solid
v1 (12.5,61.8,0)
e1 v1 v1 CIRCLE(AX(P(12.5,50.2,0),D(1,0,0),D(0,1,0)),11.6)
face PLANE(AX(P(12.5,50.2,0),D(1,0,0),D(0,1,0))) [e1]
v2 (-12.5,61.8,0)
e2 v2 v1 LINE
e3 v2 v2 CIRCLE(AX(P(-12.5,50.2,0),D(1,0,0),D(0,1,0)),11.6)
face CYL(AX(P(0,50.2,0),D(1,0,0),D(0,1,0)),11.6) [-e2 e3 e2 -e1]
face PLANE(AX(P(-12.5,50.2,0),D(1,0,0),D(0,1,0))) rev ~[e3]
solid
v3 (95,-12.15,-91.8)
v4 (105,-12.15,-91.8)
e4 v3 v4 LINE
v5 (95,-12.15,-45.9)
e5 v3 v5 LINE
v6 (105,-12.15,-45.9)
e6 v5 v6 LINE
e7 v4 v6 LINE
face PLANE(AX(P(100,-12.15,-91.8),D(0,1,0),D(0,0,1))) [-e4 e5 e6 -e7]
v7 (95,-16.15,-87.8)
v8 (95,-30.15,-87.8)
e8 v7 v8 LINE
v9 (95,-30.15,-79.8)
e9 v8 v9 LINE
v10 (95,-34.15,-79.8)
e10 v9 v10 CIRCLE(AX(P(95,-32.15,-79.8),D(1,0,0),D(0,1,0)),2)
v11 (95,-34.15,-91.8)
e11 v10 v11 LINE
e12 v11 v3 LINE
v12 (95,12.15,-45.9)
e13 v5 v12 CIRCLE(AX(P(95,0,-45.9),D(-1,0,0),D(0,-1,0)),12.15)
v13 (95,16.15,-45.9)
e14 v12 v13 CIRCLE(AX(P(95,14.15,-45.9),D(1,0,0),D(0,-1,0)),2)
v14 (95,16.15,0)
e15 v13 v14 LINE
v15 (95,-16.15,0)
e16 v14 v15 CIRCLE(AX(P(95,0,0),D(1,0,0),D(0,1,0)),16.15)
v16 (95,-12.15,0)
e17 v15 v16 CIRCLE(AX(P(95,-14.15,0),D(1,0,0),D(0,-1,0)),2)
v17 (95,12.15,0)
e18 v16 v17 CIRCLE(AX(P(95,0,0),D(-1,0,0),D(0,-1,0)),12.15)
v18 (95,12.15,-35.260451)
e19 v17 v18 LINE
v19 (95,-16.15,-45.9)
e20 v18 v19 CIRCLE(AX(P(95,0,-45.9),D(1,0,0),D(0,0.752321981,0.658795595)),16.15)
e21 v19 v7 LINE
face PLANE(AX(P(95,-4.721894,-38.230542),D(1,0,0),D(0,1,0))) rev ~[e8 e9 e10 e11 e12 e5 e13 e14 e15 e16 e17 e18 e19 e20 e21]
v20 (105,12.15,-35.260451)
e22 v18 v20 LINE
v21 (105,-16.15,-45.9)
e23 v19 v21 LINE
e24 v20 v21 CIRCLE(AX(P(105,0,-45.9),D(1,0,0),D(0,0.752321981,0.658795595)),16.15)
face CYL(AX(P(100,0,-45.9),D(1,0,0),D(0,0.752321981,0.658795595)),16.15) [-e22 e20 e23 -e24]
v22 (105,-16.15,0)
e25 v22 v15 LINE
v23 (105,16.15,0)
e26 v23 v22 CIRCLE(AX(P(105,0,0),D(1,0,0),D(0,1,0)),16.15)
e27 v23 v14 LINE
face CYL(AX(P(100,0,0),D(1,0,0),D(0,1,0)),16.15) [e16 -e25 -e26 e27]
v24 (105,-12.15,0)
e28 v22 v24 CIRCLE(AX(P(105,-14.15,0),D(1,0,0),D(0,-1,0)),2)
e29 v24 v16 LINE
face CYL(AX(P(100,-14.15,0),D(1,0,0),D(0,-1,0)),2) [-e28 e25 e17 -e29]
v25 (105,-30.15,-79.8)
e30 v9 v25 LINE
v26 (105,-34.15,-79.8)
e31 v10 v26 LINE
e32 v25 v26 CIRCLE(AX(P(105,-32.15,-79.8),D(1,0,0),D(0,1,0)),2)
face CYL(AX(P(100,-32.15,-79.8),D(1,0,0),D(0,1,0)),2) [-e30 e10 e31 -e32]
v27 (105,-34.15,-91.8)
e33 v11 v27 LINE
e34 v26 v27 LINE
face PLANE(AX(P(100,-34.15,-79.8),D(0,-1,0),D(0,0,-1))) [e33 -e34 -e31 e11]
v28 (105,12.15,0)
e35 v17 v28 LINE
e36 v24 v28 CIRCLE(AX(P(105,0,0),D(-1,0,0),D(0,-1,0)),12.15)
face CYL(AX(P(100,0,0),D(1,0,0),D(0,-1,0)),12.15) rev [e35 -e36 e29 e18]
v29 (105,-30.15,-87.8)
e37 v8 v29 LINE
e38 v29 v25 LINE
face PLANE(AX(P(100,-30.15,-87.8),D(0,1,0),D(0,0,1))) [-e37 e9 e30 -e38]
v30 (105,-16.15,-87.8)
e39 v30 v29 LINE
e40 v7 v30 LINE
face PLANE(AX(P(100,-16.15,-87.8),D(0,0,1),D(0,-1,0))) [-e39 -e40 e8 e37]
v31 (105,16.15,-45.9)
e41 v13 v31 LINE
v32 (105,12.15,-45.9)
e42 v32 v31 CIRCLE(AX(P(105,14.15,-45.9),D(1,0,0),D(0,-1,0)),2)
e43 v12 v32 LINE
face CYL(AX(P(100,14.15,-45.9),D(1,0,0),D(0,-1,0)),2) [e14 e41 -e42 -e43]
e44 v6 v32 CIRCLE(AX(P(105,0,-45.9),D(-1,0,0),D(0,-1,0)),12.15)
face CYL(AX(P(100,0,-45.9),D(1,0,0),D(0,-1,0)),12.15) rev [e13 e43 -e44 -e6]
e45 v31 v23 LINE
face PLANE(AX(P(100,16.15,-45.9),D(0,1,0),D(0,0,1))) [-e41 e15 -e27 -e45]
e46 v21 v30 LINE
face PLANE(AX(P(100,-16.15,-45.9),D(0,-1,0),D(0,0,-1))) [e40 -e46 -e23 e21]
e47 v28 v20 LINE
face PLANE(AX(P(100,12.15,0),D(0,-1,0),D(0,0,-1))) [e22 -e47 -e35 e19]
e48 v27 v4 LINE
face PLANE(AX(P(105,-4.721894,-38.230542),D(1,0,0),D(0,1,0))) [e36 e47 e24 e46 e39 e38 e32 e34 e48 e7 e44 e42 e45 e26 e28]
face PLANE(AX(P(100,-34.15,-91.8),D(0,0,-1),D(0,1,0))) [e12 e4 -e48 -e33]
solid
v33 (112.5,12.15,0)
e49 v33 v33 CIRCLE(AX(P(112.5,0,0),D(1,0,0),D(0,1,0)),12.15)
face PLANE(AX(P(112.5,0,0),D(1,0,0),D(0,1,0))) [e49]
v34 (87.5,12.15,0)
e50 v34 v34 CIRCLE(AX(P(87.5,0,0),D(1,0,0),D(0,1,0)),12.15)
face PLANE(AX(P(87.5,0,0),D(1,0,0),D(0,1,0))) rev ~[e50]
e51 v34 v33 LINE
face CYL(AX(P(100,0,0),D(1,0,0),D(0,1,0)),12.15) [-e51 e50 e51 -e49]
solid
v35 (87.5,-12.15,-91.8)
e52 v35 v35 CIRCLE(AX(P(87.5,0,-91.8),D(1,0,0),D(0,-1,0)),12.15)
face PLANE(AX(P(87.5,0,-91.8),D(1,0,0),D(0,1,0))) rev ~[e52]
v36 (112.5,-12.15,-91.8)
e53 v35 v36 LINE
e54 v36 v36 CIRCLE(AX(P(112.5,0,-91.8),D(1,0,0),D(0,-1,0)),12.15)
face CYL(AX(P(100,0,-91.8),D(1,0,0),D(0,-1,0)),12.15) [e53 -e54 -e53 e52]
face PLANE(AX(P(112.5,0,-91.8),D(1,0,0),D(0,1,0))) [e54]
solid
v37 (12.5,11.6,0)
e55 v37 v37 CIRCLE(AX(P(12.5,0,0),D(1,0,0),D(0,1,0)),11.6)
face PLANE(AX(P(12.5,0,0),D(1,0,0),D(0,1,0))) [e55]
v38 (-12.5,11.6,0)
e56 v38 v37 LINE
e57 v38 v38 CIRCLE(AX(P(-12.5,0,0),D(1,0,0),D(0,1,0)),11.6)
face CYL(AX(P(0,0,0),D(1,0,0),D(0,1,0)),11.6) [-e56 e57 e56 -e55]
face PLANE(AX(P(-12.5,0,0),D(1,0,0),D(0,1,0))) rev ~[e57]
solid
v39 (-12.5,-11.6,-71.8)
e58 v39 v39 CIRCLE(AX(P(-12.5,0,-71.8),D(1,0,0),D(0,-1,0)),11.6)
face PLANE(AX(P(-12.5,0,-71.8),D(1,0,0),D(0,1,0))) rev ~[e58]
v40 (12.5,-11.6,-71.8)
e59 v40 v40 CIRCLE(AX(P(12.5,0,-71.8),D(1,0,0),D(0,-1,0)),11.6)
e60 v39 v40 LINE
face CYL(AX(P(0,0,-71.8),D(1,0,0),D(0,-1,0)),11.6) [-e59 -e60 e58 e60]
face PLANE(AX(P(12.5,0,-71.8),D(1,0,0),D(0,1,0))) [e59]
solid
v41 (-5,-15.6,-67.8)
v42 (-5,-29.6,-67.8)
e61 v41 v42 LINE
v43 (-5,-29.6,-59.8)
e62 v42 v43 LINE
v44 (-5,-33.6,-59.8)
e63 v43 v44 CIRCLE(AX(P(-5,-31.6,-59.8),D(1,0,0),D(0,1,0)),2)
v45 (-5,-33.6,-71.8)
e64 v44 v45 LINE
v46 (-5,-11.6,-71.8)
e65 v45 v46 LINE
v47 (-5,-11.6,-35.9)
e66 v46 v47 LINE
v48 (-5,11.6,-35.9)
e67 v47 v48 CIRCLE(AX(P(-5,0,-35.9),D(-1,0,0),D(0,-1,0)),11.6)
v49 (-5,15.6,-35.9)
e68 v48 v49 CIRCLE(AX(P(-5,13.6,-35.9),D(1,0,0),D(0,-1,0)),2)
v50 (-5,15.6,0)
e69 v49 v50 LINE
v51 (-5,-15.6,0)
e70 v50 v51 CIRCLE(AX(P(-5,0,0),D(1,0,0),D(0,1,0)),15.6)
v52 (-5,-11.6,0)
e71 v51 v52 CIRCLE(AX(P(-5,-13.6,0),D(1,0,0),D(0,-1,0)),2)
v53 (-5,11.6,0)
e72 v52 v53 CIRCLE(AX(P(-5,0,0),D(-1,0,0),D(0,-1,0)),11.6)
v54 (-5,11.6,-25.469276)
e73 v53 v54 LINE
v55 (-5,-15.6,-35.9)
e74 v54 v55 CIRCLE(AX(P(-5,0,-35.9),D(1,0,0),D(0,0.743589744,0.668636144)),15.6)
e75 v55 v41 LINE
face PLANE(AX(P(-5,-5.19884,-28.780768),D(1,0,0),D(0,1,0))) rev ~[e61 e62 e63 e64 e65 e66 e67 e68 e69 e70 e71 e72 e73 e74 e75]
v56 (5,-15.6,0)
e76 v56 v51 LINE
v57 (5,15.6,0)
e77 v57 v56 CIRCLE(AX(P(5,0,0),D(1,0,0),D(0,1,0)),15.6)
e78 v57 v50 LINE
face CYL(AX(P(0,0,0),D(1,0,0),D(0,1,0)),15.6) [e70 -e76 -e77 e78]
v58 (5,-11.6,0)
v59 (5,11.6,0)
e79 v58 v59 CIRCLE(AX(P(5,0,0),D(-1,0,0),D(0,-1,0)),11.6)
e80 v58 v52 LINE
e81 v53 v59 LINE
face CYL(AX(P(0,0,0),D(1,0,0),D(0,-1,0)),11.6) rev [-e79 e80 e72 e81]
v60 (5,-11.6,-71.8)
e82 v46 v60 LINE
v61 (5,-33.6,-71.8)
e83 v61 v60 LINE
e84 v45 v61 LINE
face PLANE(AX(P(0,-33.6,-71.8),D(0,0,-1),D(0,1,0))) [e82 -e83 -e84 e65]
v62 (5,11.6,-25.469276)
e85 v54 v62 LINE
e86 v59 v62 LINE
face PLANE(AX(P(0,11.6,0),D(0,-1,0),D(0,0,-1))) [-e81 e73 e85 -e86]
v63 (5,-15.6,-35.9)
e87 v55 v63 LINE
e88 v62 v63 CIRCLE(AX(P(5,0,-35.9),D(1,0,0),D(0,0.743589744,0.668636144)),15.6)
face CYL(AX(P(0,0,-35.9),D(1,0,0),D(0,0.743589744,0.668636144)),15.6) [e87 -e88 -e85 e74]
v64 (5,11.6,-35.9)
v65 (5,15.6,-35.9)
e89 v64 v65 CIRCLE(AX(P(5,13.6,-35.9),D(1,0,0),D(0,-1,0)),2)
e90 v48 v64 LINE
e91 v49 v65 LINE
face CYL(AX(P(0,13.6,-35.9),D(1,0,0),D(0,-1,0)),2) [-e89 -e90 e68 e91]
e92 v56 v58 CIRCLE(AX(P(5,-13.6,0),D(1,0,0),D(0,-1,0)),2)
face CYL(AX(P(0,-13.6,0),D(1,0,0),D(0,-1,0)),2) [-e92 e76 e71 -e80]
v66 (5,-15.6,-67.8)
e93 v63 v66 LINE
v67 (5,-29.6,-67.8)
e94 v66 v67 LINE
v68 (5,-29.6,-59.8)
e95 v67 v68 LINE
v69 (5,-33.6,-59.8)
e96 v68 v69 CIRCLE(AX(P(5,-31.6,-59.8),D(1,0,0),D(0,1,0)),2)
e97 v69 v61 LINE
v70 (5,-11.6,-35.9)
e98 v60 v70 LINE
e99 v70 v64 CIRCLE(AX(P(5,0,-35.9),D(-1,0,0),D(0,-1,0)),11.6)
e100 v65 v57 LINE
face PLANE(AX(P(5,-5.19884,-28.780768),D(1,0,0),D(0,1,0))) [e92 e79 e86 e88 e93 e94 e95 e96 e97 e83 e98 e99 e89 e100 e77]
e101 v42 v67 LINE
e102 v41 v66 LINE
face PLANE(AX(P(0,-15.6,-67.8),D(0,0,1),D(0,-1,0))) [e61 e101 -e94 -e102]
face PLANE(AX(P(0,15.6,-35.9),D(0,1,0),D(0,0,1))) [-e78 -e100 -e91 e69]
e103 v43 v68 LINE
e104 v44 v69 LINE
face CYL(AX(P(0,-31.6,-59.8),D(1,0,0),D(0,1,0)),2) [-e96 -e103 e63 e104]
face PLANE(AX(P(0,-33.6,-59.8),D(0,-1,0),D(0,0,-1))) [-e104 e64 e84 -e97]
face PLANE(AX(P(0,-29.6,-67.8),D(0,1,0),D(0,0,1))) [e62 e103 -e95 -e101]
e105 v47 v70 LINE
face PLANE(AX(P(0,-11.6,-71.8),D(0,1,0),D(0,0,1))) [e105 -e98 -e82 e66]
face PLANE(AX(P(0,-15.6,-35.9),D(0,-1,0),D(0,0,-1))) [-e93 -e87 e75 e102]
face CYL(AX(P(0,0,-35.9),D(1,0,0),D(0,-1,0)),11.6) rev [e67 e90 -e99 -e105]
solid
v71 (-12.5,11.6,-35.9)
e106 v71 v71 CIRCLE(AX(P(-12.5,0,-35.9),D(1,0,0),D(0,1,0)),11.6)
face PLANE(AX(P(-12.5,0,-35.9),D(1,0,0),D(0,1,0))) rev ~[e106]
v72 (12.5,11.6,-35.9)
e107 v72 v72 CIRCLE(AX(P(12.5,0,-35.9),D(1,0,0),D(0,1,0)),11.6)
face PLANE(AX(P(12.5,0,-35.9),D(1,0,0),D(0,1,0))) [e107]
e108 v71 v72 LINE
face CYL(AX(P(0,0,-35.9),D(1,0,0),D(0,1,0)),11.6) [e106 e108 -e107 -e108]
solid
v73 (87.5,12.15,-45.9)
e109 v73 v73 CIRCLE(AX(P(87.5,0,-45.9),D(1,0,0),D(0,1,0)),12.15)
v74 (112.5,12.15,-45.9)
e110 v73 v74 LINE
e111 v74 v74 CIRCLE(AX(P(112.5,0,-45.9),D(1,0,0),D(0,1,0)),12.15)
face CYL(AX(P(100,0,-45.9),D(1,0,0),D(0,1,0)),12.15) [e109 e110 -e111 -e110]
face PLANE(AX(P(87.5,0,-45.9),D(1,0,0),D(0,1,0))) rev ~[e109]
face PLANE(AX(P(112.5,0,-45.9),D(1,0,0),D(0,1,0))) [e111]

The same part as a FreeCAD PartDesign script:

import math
import FreeCAD as App
import Part
import Sketcher

V = App.Vector

doc = App.newDocument("Part")
body = doc.addObject("PartDesign::Body", "Body")

sketch1 = body.newObject("Sketcher::SketchObject", "Sketch")
sketch1.AttachmentSupport = (doc.getObject("YZ_Plane"), [""])
sketch1.MapMode = "FlatFace"
sketch1.addGeometry(Part.Circle(V(0, 0, 0), V(0, 0, 1), 11.6), False)
sketch1.addConstraint([
    Sketcher.Constraint("Coincident", 0, 3, -1, 1),
    Sketcher.Constraint("Diameter", 0, 23.2),
])
pad1 = body.newObject("PartDesign::Pad", "Pad")
pad1.Profile = sketch1
pad1.Length = 25
pad1.Midplane = True
body2 = doc.addObject("PartDesign::Body", "Body001")

sketch2 = body2.newObject("Sketcher::SketchObject", "Sketch001")
sketch2.AttachmentSupport = (doc.getObject("YZ_Plane001"), [""])
sketch2.MapMode = "FlatFace"
sketch2.addGeometry(Part.Circle(V(0, -35.9, 0), V(0, 0, 1), 11.6), False)
sketch2.addConstraint([
    Sketcher.Constraint("PointOnObject", 0, 3, -2),
    Sketcher.Constraint("Diameter", 0, 23.2),
    Sketcher.Constraint("DistanceY", 0, 3, -1, 1, 35.9),
])
pad2 = body2.newObject("PartDesign::Pad", "Pad001")
pad2.Profile = sketch2
pad2.Length = 25
pad2.Midplane = True
body3 = doc.addObject("PartDesign::Body", "Body002")

sketch3 = body3.newObject("Sketcher::SketchObject", "Sketch002")
sketch3.AttachmentSupport = (doc.getObject("YZ_Plane002"), [""])
sketch3.MapMode = "FlatFace"
sketch3.addGeometry(Part.Circle(V(50.2, 0, 0), V(0, 0, 1), 11.6), False)
sketch3.addConstraint([
    Sketcher.Constraint("PointOnObject", 0, 3, -1),
    Sketcher.Constraint("Diameter", 0, 23.2),
    Sketcher.Constraint("DistanceX", -1, 1, 0, 3, 50.2),
])
pad3 = body3.newObject("PartDesign::Pad", "Pad002")
pad3.Profile = sketch3
pad3.Length = 25
pad3.Midplane = True
body4 = doc.addObject("PartDesign::Body", "Body003")

sketch4 = body4.newObject("Sketcher::SketchObject", "Sketch003")
sketch4.AttachmentSupport = (doc.getObject("YZ_Plane003"), [""])
sketch4.MapMode = "FlatFace"
sketch4.addGeometry([
    Part.ArcOfCircle(Part.Circle(V(0, 0, 0), V(0, 0, 1), 11.6), math.radians(0), math.radians(180)),
    Part.LineSegment(V(11.6, 0, 0), V(11.6, -25.469276, 0)),
    Part.ArcOfCircle(Part.Circle(V(0, -35.9, 0), V(0, 0, 1), 15.6), math.radians(41.961889), math.radians(180)),
    Part.LineSegment(V(-15.6, -35.9, 0), V(-15.6, -67.8, 0)),
    Part.LineSegment(V(-15.6, -67.8, 0), V(-29.6, -67.8, 0)),
    Part.LineSegment(V(-29.6, -67.8, 0), V(-29.6, -59.8, 0)),
    Part.ArcOfCircle(Part.Circle(V(-31.6, -59.8, 0), V(0, 0, 1), 2), math.radians(0), math.radians(180)),
    Part.LineSegment(V(-33.6, -59.8, 0), V(-33.6, -71.8, 0)),
    Part.LineSegment(V(-33.6, -71.8, 0), V(-11.6, -71.8, 0)),
    Part.LineSegment(V(-11.6, -71.8, 0), V(-11.6, -35.9, 0)),
    Part.ArcOfCircle(Part.Circle(V(0, -35.9, 0), V(0, 0, 1), 11.6), math.radians(0), math.radians(180)),
    Part.ArcOfCircle(Part.Circle(V(13.6, -35.9, 0), V(0, 0, 1), 2), math.radians(180), math.radians(360)),
    Part.LineSegment(V(15.6, -35.9, 0), V(15.6, 0, 0)),
    Part.ArcOfCircle(Part.Circle(V(0, 0, 0), V(0, 0, 1), 15.6), math.radians(0), math.radians(180)),
    Part.ArcOfCircle(Part.Circle(V(-13.6, 0, 0), V(0, 0, 1), 2), math.radians(180), math.radians(360)),
], False)
sketch4.addConstraint([
    Sketcher.Constraint("Tangent", 0, 1, 1, 1),
    Sketcher.Constraint("Coincident", 1, 2, 2, 1),
    Sketcher.Constraint("Tangent", 2, 2, 3, 1),
    Sketcher.Constraint("Coincident", 3, 2, 4, 1),
    Sketcher.Constraint("Coincident", 4, 2, 5, 1),
    Sketcher.Constraint("Tangent", 5, 2, 6, 1),
    Sketcher.Constraint("Tangent", 6, 2, 7, 1),
    Sketcher.Constraint("Coincident", 7, 2, 8, 1),
    Sketcher.Constraint("Coincident", 8, 2, 9, 1),
    Sketcher.Constraint("Tangent", 9, 2, 10, 2),
    Sketcher.Constraint("Tangent", 10, 1, 11, 1),
    Sketcher.Constraint("Tangent", 11, 2, 12, 1),
    Sketcher.Constraint("Tangent", 12, 2, 13, 1),
    Sketcher.Constraint("Tangent", 13, 2, 14, 1),
    Sketcher.Constraint("Tangent", 14, 2, 0, 2),
    Sketcher.Constraint("Vertical", 1),
    Sketcher.Constraint("Vertical", 3),
    Sketcher.Constraint("Horizontal", 4),
    Sketcher.Constraint("Vertical", 5),
    Sketcher.Constraint("Vertical", 7),
    Sketcher.Constraint("Horizontal", 8),
    Sketcher.Constraint("Vertical", 9),
    Sketcher.Constraint("Vertical", 12),
    Sketcher.Constraint("Coincident", 0, 3, -1, 1),
    Sketcher.Constraint("Coincident", 13, 3, -1, 1),
    Sketcher.Constraint("Coincident", 10, 3, 2, 3),
    Sketcher.Constraint("Equal", 0, 10),
    Sketcher.Constraint("Equal", 6, 11),
    Sketcher.Constraint("Equal", 2, 13),
    Sketcher.Constraint("Equal", 11, 14),
    Sketcher.Constraint("PointOnObject", 14, 3, -1),
    Sketcher.Constraint("Horizontal", 10, 3, 11, 3),
    Sketcher.Constraint("Equal", 9, 12),
    Sketcher.Constraint("Radius", 6, 2.0),
    Sketcher.Constraint("Radius", 0, 11.6),
    Sketcher.Constraint("DistanceX", 4, 2, 4, 1, 14.0),
    Sketcher.Constraint("DistanceY", 5, 1, 5, 2, 8.0),
    Sketcher.Constraint("DistanceY", 7, 2, 7, 1, 12.0),
    Sketcher.Constraint("DistanceY", 3, 2, 3, 1, 31.9),
])
pad4 = body4.newObject("PartDesign::Pad", "Pad003")
pad4.Profile = sketch4
pad4.Length = 10
pad4.Midplane = True
body5 = doc.addObject("PartDesign::Body", "Body004")

sketch5 = body5.newObject("Sketcher::SketchObject", "Sketch004")
sketch5.AttachmentSupport = (doc.getObject("YZ_Plane004"), [""])
sketch5.MapMode = "FlatFace"
sketch5.addGeometry(Part.Circle(V(0, -71.8, 0), V(0, 0, 1), 11.6), False)
sketch5.addConstraint([
    Sketcher.Constraint("PointOnObject", 0, 3, -2),
    Sketcher.Constraint("Diameter", 0, 23.2),
    Sketcher.Constraint("DistanceY", 0, 3, -1, 1, 71.8),
])
pad5 = body5.newObject("PartDesign::Pad", "Pad004")
pad5.Profile = sketch5
pad5.Length = 25
pad5.Midplane = True
body6 = doc.addObject("PartDesign::Body", "Body005")

sketch6 = body6.newObject("Sketcher::SketchObject", "Sketch005")
sketch6.AttachmentSupport = (doc.getObject("YZ_Plane005"), [""])
sketch6.MapMode = "FlatFace"
sketch6.AttachmentOffset = App.Placement(V(0, 0, 100), App.Rotation())
sketch6.addGeometry(Part.Circle(V(0, 0, 0), V(0, 0, 1), 12.15), False)
sketch6.addConstraint([
    Sketcher.Constraint("Coincident", 0, 3, -1, 1),
    Sketcher.Constraint("Diameter", 0, 24.3),
])
pad6 = body6.newObject("PartDesign::Pad", "Pad005")
pad6.Profile = sketch6
pad6.Length = 25
pad6.Midplane = True
body7 = doc.addObject("PartDesign::Body", "Body006")

sketch7 = body7.newObject("Sketcher::SketchObject", "Sketch006")
sketch7.AttachmentSupport = (doc.getObject("YZ_Plane006"), [""])
sketch7.MapMode = "FlatFace"
sketch7.AttachmentOffset = App.Placement(V(0, 0, 100), App.Rotation())
sketch7.addGeometry(Part.Circle(V(0, -45.9, 0), V(0, 0, 1), 12.15), False)
sketch7.addConstraint([
    Sketcher.Constraint("PointOnObject", 0, 3, -2),
    Sketcher.Constraint("Diameter", 0, 24.3),
    Sketcher.Constraint("DistanceY", 0, 3, -1, 1, 45.9),
])
pad7 = body7.newObject("PartDesign::Pad", "Pad006")
pad7.Profile = sketch7
pad7.Length = 25
pad7.Midplane = True
body8 = doc.addObject("PartDesign::Body", "Body007")

sketch8 = body8.newObject("Sketcher::SketchObject", "Sketch007")
sketch8.AttachmentSupport = (doc.getObject("YZ_Plane007"), [""])
sketch8.MapMode = "FlatFace"
sketch8.AttachmentOffset = App.Placement(V(0, 0, 100), App.Rotation())
sketch8.addGeometry(Part.Circle(V(0, -91.8, 0), V(0, 0, 1), 12.15), False)
sketch8.addConstraint([
    Sketcher.Constraint("PointOnObject", 0, 3, -2),
    Sketcher.Constraint("Diameter", 0, 24.3),
    Sketcher.Constraint("DistanceY", 0, 3, -1, 1, 91.8),
])
pad8 = body8.newObject("PartDesign::Pad", "Pad007")
pad8.Profile = sketch8
pad8.Length = 25
pad8.Midplane = True
body9 = doc.addObject("PartDesign::Body", "Body008")

sketch9 = body9.newObject("Sketcher::SketchObject", "Sketch008")
sketch9.AttachmentSupport = (doc.getObject("YZ_Plane008"), [""])
sketch9.MapMode = "FlatFace"
sketch9.AttachmentOffset = App.Placement(V(0, 0, 100), App.Rotation())
sketch9.addGeometry([
    Part.ArcOfCircle(Part.Circle(V(0, 0, 0), V(0, 0, 1), 12.15), math.radians(0), math.radians(180)),
    Part.LineSegment(V(12.15, 0, 0), V(12.15, -35.260451, 0)),
    Part.ArcOfCircle(Part.Circle(V(0, -45.9, 0), V(0, 0, 1), 16.15), math.radians(41.208083), math.radians(180)),
    Part.LineSegment(V(-16.15, -45.9, 0), V(-16.15, -87.8, 0)),
    Part.LineSegment(V(-16.15, -87.8, 0), V(-30.15, -87.8, 0)),
    Part.LineSegment(V(-30.15, -87.8, 0), V(-30.15, -79.8, 0)),
    Part.ArcOfCircle(Part.Circle(V(-32.15, -79.8, 0), V(0, 0, 1), 2), math.radians(0), math.radians(180)),
    Part.LineSegment(V(-34.15, -79.8, 0), V(-34.15, -91.8, 0)),
    Part.LineSegment(V(-34.15, -91.8, 0), V(-12.15, -91.8, 0)),
    Part.LineSegment(V(-12.15, -91.8, 0), V(-12.15, -45.9, 0)),
    Part.ArcOfCircle(Part.Circle(V(0, -45.9, 0), V(0, 0, 1), 12.15), math.radians(0), math.radians(180)),
    Part.ArcOfCircle(Part.Circle(V(14.15, -45.9, 0), V(0, 0, 1), 2), math.radians(180), math.radians(360)),
    Part.LineSegment(V(16.15, -45.9, 0), V(16.15, 0, 0)),
    Part.ArcOfCircle(Part.Circle(V(0, 0, 0), V(0, 0, 1), 16.15), math.radians(0), math.radians(180)),
    Part.ArcOfCircle(Part.Circle(V(-14.15, 0, 0), V(0, 0, 1), 2), math.radians(180), math.radians(360)),
], False)
sketch9.addConstraint([
    Sketcher.Constraint("Tangent", 0, 1, 1, 1),
    Sketcher.Constraint("Coincident", 1, 2, 2, 1),
    Sketcher.Constraint("Tangent", 2, 2, 3, 1),
    Sketcher.Constraint("Coincident", 3, 2, 4, 1),
    Sketcher.Constraint("Coincident", 4, 2, 5, 1),
    Sketcher.Constraint("Tangent", 5, 2, 6, 1),
    Sketcher.Constraint("Tangent", 6, 2, 7, 1),
    Sketcher.Constraint("Coincident", 7, 2, 8, 1),
    Sketcher.Constraint("Coincident", 8, 2, 9, 1),
    Sketcher.Constraint("Tangent", 9, 2, 10, 2),
    Sketcher.Constraint("Tangent", 10, 1, 11, 1),
    Sketcher.Constraint("Tangent", 11, 2, 12, 1),
    Sketcher.Constraint("Tangent", 12, 2, 13, 1),
    Sketcher.Constraint("Tangent", 13, 2, 14, 1),
    Sketcher.Constraint("Tangent", 14, 2, 0, 2),
    Sketcher.Constraint("Vertical", 1),
    Sketcher.Constraint("Vertical", 3),
    Sketcher.Constraint("Horizontal", 4),
    Sketcher.Constraint("Vertical", 5),
    Sketcher.Constraint("Vertical", 7),
    Sketcher.Constraint("Horizontal", 8),
    Sketcher.Constraint("Vertical", 9),
    Sketcher.Constraint("Vertical", 12),
    Sketcher.Constraint("Coincident", 0, 3, -1, 1),
    Sketcher.Constraint("Coincident", 13, 3, -1, 1),
    Sketcher.Constraint("Coincident", 10, 3, 2, 3),
    Sketcher.Constraint("Equal", 0, 10),
    Sketcher.Constraint("Equal", 6, 11),
    Sketcher.Constraint("Equal", 2, 13),
    Sketcher.Constraint("Equal", 11, 14),
    Sketcher.Constraint("PointOnObject", 14, 3, -1),
    Sketcher.Constraint("Horizontal", 10, 3, 11, 3),
    Sketcher.Constraint("Equal", 9, 12),
    Sketcher.Constraint("Radius", 6, 2.0),
    Sketcher.Constraint("DistanceX", 4, 2, 4, 1, 14.0),
    Sketcher.Constraint("DistanceY", 5, 1, 5, 2, 8.0),
    Sketcher.Constraint("DistanceY", 7, 2, 7, 1, 12.0),
    Sketcher.Constraint("Radius", 0, 12.15),
    Sketcher.Constraint("DistanceY", 3, 2, 3, 1, 41.9),
])
pad9 = body9.newObject("PartDesign::Pad", "Pad008")
pad9.Profile = sketch9
pad9.Length = 10
pad9.Midplane = True

doc.recompute()
